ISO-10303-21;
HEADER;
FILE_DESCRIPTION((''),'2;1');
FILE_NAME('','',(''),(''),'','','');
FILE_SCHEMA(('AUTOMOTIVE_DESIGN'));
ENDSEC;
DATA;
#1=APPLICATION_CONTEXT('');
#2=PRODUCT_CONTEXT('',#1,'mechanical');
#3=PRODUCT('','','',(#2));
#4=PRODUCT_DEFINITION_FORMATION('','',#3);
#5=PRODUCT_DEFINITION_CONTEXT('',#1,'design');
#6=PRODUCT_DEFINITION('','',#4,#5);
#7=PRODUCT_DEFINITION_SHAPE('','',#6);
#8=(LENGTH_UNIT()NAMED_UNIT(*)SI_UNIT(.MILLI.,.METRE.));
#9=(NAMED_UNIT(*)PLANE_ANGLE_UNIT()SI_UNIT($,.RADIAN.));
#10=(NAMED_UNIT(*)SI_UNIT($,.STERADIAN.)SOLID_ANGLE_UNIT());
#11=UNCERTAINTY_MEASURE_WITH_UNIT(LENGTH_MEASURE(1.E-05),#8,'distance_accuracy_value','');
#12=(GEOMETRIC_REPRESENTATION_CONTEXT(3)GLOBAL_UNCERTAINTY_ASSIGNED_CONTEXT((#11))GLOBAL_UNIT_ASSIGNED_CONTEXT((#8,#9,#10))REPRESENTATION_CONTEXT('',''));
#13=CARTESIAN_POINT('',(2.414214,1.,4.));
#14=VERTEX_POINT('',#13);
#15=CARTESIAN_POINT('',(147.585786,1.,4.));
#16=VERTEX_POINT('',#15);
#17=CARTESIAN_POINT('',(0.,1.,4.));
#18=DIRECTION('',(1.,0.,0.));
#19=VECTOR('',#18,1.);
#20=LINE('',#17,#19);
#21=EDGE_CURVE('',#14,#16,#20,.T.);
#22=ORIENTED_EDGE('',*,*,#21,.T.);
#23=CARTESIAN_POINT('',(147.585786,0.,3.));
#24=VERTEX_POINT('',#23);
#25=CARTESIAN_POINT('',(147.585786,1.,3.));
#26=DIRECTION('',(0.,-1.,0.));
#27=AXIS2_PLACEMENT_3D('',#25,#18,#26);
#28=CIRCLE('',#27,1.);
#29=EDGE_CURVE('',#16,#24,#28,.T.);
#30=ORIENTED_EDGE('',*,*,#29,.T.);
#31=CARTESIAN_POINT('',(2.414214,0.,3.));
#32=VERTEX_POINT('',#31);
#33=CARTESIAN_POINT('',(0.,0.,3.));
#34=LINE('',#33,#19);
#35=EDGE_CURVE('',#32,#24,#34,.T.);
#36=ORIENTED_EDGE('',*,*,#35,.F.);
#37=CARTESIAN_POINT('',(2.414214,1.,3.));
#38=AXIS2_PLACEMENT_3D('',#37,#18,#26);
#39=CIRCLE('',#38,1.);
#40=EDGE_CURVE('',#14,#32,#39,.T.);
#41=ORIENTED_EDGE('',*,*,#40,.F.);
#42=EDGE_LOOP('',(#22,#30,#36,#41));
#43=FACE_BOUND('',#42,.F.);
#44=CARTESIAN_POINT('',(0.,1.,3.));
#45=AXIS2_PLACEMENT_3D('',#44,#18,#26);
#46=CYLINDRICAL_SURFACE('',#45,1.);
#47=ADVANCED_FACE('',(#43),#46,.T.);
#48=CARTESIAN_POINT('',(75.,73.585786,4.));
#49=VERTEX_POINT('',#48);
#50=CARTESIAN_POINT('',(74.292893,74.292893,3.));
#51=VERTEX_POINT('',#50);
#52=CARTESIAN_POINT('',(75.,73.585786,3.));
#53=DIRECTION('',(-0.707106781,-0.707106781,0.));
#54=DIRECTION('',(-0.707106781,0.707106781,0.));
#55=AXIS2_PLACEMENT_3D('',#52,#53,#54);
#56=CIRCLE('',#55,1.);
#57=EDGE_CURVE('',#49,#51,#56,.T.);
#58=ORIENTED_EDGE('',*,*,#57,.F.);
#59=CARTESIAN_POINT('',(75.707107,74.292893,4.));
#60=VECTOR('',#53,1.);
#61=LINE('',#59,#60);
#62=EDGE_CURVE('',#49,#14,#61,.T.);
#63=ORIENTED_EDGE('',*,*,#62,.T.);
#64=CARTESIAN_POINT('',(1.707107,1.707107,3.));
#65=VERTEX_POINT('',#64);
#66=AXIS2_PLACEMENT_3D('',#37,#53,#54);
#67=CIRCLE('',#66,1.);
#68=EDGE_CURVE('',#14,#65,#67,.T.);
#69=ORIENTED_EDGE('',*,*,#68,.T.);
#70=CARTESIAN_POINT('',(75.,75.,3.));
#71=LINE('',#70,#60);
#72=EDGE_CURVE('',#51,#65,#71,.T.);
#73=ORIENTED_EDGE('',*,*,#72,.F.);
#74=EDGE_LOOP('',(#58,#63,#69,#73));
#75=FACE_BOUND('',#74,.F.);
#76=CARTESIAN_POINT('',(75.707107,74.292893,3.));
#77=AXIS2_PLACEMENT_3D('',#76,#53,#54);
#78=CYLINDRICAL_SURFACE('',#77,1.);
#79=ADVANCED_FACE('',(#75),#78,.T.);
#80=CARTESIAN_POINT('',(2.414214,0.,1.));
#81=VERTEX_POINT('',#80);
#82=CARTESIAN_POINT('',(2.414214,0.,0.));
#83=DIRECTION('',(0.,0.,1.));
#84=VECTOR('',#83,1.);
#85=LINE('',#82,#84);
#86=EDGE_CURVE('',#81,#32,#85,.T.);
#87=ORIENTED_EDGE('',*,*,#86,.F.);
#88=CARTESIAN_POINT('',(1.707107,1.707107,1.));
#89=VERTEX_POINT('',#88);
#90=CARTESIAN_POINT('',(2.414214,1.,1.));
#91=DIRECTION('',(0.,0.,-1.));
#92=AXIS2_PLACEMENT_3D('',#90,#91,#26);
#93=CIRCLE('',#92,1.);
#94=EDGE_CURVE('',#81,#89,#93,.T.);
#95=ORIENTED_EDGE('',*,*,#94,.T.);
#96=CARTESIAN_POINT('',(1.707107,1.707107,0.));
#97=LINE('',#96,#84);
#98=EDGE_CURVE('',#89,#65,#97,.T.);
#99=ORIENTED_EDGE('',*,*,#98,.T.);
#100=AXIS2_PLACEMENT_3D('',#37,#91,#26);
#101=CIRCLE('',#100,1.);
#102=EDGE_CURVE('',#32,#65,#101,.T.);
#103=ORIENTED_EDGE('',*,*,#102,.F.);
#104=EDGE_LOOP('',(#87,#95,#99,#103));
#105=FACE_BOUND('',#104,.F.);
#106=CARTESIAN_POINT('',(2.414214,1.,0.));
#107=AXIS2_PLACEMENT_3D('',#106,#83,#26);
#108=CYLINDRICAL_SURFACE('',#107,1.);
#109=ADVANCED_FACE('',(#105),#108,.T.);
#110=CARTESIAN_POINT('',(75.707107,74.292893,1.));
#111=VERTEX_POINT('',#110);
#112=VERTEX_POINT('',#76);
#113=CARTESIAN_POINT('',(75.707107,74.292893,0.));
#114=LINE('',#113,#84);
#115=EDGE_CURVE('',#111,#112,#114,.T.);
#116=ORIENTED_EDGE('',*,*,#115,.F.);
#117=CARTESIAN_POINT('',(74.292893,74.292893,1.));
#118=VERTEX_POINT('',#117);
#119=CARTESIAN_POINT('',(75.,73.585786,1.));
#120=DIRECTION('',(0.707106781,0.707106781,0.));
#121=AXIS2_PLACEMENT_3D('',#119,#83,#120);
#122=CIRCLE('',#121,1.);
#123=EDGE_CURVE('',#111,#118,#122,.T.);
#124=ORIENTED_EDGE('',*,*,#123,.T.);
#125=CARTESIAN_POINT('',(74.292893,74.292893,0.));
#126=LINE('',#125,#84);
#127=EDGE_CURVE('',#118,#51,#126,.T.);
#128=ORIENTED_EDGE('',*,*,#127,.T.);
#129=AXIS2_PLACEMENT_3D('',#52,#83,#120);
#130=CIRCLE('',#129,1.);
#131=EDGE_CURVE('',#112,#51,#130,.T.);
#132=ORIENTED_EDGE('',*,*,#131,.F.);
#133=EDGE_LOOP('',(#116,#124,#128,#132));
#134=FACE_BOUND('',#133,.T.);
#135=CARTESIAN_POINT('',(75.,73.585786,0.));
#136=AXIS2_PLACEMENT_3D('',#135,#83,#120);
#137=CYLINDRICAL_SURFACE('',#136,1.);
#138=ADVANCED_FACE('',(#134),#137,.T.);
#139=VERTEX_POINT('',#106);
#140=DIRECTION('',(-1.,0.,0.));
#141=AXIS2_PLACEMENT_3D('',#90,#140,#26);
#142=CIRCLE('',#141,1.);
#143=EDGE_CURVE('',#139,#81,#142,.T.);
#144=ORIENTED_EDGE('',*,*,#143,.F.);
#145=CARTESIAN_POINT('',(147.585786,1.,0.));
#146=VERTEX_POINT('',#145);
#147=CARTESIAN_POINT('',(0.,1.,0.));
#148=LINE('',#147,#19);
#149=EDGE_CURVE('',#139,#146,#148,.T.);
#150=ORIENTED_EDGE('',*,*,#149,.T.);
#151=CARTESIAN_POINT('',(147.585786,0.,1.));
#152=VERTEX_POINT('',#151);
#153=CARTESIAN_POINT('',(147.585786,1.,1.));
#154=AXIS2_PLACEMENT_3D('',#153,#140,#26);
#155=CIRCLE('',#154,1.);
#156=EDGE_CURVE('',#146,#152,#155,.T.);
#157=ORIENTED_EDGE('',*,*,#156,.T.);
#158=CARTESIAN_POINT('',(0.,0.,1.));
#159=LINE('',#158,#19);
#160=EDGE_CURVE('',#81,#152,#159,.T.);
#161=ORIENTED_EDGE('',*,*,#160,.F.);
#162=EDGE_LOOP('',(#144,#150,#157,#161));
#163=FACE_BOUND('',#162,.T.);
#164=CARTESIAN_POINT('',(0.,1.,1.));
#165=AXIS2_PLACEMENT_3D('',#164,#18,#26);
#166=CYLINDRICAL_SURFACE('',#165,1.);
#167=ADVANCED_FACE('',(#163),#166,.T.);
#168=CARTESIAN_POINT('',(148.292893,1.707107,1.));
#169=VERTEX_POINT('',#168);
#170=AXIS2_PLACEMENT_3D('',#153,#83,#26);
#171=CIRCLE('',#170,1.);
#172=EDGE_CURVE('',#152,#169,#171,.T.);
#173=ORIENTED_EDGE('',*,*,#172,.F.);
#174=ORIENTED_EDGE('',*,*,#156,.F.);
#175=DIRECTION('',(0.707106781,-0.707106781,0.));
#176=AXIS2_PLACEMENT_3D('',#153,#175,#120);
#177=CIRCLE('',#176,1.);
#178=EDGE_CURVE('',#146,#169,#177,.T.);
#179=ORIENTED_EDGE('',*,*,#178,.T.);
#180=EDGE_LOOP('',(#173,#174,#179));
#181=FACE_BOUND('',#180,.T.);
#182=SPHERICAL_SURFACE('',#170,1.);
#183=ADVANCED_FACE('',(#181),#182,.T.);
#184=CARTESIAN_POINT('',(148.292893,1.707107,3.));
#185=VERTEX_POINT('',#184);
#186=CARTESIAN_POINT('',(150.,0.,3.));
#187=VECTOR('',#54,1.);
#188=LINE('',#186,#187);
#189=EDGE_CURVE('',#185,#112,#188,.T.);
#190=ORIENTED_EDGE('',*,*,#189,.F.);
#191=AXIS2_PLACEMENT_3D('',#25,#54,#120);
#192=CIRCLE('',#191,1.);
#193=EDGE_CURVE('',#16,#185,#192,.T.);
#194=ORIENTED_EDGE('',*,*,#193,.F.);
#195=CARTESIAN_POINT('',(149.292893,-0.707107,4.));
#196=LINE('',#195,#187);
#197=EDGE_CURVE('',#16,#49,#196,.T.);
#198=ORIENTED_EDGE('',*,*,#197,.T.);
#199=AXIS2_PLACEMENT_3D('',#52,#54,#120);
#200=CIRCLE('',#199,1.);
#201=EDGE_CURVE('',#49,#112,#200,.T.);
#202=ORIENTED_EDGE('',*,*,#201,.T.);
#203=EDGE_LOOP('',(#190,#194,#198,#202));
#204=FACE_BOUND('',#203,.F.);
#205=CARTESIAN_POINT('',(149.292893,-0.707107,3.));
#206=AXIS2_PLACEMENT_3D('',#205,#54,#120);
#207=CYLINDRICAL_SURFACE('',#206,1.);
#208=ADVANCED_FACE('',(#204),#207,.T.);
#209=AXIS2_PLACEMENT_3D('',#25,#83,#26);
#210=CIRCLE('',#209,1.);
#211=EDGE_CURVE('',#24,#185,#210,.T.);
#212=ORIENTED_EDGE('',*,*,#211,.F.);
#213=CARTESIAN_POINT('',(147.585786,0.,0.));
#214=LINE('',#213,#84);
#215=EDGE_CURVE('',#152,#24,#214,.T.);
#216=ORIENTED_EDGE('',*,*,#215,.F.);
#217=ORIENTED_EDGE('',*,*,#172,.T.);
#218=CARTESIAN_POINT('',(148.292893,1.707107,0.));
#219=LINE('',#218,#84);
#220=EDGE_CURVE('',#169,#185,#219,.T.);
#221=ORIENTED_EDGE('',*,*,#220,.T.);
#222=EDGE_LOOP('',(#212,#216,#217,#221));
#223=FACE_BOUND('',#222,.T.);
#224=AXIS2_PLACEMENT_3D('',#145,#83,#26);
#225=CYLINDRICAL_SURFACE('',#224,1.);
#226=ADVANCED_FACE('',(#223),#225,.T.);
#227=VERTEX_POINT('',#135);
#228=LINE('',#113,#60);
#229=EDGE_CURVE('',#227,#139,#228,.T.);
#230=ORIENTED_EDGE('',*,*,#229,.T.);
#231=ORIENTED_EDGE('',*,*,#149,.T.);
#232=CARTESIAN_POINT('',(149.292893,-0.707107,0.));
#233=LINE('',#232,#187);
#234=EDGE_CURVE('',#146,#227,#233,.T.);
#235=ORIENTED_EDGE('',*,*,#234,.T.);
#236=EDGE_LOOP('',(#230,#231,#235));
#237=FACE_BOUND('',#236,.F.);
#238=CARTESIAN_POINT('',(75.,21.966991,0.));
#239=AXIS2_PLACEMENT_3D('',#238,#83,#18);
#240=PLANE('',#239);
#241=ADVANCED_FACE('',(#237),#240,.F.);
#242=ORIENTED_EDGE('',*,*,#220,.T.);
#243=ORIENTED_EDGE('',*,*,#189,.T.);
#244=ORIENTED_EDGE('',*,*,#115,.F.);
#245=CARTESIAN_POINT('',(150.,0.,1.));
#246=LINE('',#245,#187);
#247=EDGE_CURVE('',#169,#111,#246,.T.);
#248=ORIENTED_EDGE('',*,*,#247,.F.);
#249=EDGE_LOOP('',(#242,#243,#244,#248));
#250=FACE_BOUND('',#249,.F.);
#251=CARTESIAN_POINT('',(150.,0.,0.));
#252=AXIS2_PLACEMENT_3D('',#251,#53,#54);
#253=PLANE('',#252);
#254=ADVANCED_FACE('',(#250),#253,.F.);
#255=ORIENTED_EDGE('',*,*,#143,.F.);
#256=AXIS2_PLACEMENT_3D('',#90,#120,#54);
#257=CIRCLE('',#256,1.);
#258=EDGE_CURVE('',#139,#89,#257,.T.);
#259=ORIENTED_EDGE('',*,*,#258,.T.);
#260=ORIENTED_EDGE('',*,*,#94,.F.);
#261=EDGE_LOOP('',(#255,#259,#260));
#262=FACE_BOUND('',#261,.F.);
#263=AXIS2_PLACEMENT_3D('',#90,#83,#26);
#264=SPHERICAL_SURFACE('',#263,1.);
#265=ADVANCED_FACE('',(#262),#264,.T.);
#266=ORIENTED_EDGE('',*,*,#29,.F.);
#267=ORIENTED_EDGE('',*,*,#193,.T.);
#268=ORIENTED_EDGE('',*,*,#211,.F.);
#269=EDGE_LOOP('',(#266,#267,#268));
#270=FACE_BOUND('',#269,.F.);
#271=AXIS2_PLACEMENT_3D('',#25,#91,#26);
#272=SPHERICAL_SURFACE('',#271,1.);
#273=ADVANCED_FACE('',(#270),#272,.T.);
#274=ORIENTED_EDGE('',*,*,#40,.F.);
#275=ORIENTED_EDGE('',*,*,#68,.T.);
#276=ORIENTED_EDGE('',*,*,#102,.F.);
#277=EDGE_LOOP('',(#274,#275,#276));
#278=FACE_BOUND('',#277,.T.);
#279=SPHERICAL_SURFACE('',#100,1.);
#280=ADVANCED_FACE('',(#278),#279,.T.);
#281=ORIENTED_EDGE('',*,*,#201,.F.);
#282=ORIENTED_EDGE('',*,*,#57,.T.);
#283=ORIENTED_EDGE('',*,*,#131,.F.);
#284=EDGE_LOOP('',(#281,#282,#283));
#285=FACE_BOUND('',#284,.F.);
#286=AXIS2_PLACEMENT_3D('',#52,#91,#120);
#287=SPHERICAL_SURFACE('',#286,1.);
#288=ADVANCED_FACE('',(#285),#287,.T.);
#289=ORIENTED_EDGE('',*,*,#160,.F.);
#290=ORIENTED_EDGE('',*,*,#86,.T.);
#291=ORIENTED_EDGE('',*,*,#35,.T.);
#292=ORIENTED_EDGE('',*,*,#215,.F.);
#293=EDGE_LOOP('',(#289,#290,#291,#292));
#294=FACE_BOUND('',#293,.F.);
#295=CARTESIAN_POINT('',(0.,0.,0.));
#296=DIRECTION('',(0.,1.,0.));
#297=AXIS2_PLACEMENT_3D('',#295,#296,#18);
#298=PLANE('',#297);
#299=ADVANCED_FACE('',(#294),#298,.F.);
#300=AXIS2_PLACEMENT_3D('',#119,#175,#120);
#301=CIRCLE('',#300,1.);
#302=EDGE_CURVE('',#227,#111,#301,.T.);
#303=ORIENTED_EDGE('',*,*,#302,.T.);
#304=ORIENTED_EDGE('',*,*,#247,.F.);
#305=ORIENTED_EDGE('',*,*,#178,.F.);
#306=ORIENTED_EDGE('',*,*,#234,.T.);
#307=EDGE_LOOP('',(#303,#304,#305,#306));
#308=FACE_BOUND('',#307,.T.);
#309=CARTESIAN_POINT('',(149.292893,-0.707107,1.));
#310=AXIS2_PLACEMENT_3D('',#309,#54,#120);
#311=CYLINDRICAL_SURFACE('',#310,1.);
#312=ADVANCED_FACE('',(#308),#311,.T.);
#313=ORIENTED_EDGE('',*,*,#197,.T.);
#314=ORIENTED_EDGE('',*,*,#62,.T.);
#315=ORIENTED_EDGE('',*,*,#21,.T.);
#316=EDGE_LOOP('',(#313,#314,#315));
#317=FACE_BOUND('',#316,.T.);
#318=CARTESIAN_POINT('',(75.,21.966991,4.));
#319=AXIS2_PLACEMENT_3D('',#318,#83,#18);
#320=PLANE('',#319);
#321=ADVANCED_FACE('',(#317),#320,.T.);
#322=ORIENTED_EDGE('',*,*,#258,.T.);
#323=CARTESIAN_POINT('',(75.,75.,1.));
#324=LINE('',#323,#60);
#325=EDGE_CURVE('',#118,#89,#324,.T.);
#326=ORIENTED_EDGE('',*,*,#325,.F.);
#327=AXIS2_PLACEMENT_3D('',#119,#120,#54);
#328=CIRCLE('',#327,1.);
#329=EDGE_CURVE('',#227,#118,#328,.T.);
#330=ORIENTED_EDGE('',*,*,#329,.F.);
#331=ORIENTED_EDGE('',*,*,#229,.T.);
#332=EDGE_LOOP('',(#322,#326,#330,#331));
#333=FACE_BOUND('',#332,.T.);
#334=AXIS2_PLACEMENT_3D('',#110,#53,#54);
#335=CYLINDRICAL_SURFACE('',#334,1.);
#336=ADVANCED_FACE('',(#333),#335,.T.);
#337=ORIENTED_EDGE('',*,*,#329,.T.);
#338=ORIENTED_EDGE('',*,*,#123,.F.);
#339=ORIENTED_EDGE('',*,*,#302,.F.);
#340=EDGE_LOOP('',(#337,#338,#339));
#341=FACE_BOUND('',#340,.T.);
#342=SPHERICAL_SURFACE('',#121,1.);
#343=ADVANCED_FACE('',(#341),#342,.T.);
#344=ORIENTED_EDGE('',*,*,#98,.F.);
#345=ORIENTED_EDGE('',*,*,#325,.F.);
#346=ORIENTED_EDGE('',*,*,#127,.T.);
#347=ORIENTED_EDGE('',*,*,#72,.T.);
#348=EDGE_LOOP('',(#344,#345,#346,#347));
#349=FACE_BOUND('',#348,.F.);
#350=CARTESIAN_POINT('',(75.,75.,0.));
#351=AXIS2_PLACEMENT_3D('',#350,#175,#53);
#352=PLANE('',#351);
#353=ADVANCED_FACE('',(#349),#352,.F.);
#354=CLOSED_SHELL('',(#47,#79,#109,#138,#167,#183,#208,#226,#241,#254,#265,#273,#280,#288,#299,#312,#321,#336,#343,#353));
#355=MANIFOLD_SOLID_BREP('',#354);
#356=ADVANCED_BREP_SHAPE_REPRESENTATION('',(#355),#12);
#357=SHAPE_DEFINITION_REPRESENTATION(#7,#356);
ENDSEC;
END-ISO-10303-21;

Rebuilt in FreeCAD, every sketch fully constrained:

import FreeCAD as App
import Part
import Sketcher
from FreeCAD import Vector

doc = App.newDocument("Part")
body = doc.addObject("PartDesign::Body", "Body")

# Sketch on XY plane
sketch1 = body.newObject("Sketcher::SketchObject", "Sketch")
sketch1.AttachmentSupport = (doc.getObject("XY_Plane"), [""])
sketch1.MapMode = "FlatFace"
sketch1.addGeometry(Part.LineSegment(Vector(0, 0, 0), Vector(150, 0, 0)), False)
sketch1.addGeometry(Part.LineSegment(Vector(150, 0, 0), Vector(75, 75, 0)), False)
sketch1.addGeometry(Part.LineSegment(Vector(75, 75, 0), Vector(0, 0, 0)), False)
sketch1.addConstraint(Sketcher.Constraint("Coincident", 0, 2, 1, 1))
sketch1.addConstraint(Sketcher.Constraint("Coincident", 1, 2, 2, 1))
sketch1.addConstraint(Sketcher.Constraint("Coincident", 2, 2, 0, 1))
sketch1.addConstraint(Sketcher.Constraint("Horizontal", 0))
sketch1.addConstraint(Sketcher.Constraint("Coincident", 2, 2, -1, 1))
sketch1.addConstraint(Sketcher.Constraint("Perpendicular", 1, 2))
sketch1.addConstraint(Sketcher.Constraint("Equal", 1, 2))
sketch1.addConstraint(Sketcher.Constraint("DistanceX", 0, 1, 0, 2, 150.0))
pad1 = body.newObject("PartDesign::Pad", "Pad")
pad1.Profile = sketch1
pad1.Length = 4
doc.recompute()

fillet = body.newObject("PartDesign::Fillet", "Fillet")
fillet.Base = (pad1, ["Edge1"])
fillet.UseAllEdges = True
fillet.Radius = 1

doc.recompute()
